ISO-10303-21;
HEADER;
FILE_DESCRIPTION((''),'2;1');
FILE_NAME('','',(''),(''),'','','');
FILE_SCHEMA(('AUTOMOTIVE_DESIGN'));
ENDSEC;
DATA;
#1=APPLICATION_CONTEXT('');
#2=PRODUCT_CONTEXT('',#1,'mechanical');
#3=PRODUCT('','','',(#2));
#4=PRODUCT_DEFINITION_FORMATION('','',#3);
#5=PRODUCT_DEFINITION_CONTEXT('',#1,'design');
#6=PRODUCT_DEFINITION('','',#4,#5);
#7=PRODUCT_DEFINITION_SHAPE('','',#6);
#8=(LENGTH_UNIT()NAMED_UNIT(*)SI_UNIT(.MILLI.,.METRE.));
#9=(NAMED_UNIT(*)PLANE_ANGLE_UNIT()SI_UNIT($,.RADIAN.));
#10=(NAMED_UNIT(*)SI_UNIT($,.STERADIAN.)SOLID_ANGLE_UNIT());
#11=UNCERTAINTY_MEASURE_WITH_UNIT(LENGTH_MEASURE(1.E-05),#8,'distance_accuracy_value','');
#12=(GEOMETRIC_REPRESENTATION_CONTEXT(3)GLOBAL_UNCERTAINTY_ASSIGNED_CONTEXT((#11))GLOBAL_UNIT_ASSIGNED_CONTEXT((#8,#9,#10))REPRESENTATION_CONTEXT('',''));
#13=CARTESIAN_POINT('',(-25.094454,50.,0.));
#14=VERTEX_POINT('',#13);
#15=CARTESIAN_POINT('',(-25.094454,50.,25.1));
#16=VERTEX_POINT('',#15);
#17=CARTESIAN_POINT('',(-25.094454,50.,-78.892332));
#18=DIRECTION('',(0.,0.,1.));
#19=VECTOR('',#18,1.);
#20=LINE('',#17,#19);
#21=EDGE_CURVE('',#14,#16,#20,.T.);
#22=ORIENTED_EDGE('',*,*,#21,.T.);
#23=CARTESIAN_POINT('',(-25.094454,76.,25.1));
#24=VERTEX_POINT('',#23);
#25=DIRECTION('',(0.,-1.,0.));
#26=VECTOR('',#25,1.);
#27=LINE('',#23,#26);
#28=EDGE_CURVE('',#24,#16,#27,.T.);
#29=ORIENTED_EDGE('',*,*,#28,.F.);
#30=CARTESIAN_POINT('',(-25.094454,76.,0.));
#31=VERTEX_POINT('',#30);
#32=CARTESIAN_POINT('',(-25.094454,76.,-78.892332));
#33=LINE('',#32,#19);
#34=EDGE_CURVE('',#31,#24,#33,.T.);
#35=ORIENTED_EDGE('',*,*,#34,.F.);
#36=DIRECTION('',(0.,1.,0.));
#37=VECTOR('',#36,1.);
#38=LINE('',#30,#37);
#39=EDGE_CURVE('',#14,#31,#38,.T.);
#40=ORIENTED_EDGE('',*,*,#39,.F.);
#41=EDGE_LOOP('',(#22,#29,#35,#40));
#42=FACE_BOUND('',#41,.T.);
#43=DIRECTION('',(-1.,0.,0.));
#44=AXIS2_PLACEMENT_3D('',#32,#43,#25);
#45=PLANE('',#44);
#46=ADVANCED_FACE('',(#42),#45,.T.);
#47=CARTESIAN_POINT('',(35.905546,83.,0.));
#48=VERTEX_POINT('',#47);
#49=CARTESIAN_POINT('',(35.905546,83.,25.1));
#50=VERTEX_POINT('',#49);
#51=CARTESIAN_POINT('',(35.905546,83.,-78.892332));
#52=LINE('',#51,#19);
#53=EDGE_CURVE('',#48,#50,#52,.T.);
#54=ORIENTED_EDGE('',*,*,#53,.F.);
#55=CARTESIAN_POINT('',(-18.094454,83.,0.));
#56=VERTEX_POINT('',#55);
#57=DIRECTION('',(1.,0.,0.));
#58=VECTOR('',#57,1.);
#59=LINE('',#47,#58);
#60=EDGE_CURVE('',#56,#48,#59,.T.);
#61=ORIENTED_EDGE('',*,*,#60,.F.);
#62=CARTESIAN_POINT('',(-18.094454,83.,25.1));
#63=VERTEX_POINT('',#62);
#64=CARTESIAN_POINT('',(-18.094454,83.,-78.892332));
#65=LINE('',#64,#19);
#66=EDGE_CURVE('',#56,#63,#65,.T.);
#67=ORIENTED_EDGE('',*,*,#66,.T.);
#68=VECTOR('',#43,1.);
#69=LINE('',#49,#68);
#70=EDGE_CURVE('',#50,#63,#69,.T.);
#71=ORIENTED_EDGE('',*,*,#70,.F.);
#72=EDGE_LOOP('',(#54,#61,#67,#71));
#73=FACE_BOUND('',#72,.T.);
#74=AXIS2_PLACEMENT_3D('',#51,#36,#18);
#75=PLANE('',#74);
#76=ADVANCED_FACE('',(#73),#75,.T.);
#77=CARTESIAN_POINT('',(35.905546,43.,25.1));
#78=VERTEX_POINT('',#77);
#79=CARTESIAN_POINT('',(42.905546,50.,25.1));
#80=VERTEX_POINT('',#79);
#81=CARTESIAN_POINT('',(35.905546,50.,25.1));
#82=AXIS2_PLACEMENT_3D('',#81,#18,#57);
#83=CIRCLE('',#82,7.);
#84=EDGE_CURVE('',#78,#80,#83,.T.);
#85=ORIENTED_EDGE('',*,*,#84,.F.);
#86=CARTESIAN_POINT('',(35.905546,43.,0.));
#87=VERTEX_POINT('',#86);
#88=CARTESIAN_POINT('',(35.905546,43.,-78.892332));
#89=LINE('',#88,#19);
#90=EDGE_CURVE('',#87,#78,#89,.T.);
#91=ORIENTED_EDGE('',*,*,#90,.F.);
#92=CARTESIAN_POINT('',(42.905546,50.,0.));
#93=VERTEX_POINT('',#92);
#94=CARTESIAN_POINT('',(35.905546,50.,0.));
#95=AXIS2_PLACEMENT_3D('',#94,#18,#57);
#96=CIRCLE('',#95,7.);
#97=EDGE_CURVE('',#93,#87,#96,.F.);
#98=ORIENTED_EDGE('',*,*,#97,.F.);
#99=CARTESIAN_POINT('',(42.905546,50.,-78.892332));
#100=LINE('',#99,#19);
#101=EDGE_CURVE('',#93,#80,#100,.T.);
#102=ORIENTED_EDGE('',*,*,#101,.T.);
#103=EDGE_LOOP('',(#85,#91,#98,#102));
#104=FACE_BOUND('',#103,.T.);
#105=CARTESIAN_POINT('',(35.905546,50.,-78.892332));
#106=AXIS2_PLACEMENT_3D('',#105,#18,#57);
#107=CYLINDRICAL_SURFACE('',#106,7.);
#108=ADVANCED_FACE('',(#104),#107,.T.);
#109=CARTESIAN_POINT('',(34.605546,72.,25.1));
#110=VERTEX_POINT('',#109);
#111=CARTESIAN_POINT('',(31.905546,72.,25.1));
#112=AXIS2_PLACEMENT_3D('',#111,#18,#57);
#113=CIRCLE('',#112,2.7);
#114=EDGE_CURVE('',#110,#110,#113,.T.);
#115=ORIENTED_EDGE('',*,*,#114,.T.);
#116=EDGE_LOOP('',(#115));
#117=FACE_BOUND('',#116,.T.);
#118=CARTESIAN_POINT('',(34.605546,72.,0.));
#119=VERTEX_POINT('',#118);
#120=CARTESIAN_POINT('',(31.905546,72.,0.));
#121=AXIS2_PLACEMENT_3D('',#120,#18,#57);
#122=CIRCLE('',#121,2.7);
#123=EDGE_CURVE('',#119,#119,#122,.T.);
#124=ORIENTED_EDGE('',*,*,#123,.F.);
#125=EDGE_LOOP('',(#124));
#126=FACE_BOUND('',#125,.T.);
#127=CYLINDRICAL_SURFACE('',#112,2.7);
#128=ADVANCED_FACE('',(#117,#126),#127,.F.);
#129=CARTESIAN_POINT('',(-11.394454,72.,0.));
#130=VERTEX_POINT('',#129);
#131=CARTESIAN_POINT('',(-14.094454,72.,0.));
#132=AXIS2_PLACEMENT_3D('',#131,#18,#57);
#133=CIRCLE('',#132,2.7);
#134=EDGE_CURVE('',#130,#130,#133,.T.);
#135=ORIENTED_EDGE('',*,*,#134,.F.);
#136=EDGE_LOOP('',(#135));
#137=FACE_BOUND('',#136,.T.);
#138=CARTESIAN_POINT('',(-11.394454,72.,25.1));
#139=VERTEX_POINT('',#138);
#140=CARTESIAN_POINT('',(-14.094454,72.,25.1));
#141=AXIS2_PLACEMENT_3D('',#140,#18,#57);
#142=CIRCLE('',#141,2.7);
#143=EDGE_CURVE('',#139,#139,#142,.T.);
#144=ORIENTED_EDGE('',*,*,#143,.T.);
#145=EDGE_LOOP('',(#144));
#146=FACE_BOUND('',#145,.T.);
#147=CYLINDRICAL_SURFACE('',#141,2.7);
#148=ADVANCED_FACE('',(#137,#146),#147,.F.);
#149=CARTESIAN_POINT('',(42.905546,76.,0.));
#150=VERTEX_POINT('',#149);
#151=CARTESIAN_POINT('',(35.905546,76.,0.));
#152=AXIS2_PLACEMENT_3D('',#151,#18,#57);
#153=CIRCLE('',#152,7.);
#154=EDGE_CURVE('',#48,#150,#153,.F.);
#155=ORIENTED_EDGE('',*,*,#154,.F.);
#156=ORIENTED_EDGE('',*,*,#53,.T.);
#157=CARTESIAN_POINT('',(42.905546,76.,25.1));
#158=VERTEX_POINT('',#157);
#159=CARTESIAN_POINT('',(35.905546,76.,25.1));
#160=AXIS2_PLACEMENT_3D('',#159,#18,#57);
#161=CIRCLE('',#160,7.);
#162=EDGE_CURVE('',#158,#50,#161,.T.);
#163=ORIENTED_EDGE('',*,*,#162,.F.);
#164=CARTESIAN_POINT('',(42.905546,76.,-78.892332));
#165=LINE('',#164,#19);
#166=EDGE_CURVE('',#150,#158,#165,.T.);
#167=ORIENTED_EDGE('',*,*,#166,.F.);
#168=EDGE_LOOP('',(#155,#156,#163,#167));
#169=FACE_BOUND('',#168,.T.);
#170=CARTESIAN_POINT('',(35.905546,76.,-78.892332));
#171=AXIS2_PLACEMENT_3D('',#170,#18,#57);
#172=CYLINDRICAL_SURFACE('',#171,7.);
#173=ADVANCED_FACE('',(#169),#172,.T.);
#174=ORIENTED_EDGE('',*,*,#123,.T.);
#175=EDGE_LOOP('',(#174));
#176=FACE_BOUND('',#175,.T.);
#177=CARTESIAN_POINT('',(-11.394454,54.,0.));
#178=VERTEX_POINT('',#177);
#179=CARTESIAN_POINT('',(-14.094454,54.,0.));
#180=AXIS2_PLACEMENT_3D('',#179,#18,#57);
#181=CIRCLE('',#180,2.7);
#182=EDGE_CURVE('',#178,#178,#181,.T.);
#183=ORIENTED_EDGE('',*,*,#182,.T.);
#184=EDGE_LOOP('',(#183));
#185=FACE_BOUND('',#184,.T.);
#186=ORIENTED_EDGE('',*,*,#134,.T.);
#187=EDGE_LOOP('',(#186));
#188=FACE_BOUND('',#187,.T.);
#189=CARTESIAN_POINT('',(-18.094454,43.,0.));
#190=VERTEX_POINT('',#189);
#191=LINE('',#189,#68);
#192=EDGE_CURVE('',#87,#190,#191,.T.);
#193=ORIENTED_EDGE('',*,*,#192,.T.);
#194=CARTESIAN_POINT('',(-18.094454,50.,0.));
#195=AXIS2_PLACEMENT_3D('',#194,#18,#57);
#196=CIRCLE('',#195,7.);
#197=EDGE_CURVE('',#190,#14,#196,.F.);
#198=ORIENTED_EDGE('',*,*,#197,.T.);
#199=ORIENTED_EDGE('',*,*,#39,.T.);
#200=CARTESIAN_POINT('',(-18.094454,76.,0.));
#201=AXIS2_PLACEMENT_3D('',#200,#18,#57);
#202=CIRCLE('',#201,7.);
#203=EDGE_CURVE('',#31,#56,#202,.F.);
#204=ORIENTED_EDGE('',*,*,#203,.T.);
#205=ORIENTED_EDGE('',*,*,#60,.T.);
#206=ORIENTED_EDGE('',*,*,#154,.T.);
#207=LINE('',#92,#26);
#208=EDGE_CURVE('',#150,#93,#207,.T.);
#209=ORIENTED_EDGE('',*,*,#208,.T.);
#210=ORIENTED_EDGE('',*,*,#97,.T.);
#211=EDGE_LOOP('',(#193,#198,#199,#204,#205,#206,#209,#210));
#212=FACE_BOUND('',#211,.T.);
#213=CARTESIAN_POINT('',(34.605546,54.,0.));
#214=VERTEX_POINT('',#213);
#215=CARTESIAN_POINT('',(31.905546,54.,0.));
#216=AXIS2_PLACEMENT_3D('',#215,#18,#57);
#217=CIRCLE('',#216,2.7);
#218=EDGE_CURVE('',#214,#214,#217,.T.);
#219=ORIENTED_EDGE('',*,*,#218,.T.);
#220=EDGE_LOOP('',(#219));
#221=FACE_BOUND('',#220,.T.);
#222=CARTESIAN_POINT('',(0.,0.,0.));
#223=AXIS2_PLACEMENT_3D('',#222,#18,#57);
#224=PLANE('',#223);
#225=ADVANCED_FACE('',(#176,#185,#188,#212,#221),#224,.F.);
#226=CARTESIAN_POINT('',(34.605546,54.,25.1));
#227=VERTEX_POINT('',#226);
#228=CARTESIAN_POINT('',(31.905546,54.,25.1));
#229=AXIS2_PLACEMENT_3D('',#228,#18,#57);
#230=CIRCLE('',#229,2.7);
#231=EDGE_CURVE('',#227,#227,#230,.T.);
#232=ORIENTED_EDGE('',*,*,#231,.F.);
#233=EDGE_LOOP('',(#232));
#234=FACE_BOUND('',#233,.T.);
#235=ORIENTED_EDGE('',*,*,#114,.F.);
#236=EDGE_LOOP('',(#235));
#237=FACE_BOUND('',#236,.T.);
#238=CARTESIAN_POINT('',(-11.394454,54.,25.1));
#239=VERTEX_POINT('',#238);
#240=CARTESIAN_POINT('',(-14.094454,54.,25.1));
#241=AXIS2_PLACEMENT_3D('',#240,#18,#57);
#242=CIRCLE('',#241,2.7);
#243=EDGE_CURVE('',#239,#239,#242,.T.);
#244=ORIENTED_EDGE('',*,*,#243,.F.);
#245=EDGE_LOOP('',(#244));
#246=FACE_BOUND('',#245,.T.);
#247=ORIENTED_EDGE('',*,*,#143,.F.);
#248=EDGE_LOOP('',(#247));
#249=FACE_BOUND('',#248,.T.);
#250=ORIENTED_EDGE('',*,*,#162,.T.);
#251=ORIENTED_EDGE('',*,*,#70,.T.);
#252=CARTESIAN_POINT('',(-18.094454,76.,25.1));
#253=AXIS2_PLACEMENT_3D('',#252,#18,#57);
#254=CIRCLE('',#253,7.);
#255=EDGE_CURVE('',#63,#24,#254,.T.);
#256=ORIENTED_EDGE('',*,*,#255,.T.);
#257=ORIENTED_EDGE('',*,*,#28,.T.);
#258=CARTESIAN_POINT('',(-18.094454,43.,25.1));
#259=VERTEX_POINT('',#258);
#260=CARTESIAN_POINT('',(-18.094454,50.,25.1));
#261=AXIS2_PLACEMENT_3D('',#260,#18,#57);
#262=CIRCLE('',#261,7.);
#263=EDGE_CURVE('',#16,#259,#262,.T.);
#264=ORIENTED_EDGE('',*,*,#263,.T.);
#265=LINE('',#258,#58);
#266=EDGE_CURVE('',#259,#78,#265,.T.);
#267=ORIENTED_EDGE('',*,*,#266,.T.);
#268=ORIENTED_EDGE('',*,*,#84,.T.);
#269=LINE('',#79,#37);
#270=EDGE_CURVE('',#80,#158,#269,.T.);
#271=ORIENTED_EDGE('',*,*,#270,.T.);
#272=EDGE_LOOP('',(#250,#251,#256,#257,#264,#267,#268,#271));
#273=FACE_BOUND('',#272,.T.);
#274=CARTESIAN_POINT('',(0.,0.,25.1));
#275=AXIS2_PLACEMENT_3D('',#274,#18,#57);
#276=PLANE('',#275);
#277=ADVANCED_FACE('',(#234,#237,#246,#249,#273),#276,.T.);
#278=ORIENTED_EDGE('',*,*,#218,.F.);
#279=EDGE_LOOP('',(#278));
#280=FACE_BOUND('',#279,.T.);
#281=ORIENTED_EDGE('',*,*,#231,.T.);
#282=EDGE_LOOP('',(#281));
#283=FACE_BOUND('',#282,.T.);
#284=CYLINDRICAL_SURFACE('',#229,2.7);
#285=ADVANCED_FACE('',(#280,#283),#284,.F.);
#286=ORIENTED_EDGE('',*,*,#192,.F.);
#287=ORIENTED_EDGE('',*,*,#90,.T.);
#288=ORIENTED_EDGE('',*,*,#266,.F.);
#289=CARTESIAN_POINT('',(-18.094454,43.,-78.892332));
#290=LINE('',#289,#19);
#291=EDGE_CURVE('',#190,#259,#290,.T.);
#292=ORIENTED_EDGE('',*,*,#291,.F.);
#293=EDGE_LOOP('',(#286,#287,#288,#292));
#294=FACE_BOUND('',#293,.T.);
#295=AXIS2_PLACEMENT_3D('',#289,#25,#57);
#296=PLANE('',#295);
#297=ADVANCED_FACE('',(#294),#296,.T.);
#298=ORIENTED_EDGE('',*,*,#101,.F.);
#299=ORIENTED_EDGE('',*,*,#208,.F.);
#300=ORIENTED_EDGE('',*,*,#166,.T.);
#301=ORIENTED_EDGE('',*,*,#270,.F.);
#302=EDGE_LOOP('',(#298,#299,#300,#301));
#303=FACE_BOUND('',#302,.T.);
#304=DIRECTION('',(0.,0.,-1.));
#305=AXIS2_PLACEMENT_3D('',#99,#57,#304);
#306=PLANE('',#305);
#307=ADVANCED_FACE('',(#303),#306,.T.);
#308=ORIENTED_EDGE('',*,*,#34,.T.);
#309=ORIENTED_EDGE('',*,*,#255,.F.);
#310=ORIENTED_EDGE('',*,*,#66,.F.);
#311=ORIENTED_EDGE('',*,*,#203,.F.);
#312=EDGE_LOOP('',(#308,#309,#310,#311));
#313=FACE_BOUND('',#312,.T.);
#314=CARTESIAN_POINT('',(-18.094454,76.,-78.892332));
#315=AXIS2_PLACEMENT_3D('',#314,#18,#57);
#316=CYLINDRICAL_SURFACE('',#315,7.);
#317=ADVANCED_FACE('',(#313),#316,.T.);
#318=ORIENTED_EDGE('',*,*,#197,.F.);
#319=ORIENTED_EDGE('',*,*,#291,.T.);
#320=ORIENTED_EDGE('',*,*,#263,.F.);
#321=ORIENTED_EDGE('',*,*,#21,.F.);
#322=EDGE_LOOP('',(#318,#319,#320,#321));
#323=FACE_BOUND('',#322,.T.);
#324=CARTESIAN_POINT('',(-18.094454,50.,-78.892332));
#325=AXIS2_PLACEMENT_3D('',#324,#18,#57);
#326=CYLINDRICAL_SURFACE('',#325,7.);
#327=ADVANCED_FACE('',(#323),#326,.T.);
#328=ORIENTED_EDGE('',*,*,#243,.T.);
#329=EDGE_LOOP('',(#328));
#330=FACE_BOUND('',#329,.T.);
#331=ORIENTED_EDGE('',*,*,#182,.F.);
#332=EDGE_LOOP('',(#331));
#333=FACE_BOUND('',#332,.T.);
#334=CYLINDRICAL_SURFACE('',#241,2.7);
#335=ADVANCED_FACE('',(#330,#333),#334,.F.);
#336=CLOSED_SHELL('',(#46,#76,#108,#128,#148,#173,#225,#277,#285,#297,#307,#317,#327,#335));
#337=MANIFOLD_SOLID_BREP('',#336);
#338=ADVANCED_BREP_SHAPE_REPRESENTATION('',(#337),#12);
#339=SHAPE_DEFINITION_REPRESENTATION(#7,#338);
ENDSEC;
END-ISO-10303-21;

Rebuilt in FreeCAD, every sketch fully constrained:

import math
import FreeCAD as App
import Part
import Sketcher
Q = App.Units.Quantity


def edges_at(feature, points):
    """Names of the edges that pass closest to the given points."""
    edges = feature.Shape.Edges
    near = lambda p: min(range(len(edges)), key=lambda i: edges[i].distToShape(Part.Vertex(*p))[0])
    return sorted({f"Edge{near(p) + 1}" for p in points})


def add_polygon(sketch, points):
    """Adds a closed chain of lines whose ends are joined by coincident constraints."""
    first, n = sketch.GeometryCount, len(points)
    for a, b in zip(points, points[1:] + points[:1]):
        sketch.addGeometry(Part.LineSegment(App.Vector(*a, 0), App.Vector(*b, 0)), False)
    for i in range(n):
        sketch.addConstraint(Sketcher.Constraint("Coincident", first + i, 2, first + (i + 1) % n, 1))

doc = App.newDocument("Part")
body = doc.addObject("PartDesign::Body", "Body")

# Sketch on XY plane
sketch1 = body.newObject("Sketcher::SketchObject", "Sketch")
sketch1.AttachmentSupport = (doc.getObject("XY_Plane"), [""])
sketch1.MapMode = "FlatFace"
add_polygon(sketch1, [(-21.094454, 79), (-21.094454, 47), (38.905546, 47), (38.905546, 79)])  # lines 0-3
sketch1.addConstraint(Sketcher.Constraint("Vertical", 0))
sketch1.addConstraint(Sketcher.Constraint("Horizontal", 1))
sketch1.addConstraint(Sketcher.Constraint("Vertical", 2))
sketch1.addConstraint(Sketcher.Constraint("Horizontal", 3))
sketch1.addConstraint(Sketcher.Constraint("DistanceX", 1, 1, 1, 2, Q("60 mm")))
sketch1.addConstraint(Sketcher.Constraint("DistanceY", 0, 2, 0, 1, Q("32 mm")))
sketch1.addConstraint(Sketcher.Constraint("DistanceY", -1, 1, 0, 2, Q("47 mm")))
sketch1.addConstraint(Sketcher.Constraint("DistanceX", 0, 2, -1, 1, Q("21.094454 mm")))
pad1 = body.newObject("PartDesign::Pad", "Pad")
pad1.Profile = sketch1
pad1.Length = 25.1

# Sketch on XY plane
sketch2 = body.newObject("Sketcher::SketchObject", "Sketch001")
sketch2.AttachmentSupport = (doc.getObject("XY_Plane"), [""])
sketch2.MapMode = "FlatFace"
sketch2.AttachmentOffset = App.Placement(App.Vector(0, 0, 25.1), App.Rotation())
sketch2.addGeometry(Part.Circle(App.Vector(31.905546, 72, 0), App.Vector(0, 0, 1), 2.7), False)
sketch2.addGeometry(Part.Circle(App.Vector(31.905546, 54, 0), App.Vector(0, 0, 1), 2.7), False)
sketch2.addGeometry(Part.Circle(App.Vector(-14.094454, 54, 0), App.Vector(0, 0, 1), 2.7), False)
sketch2.addGeometry(Part.Circle(App.Vector(-14.094454, 72, 0), App.Vector(0, 0, 1), 2.7), False)
sketch2.addConstraint(Sketcher.Constraint("Equal", 0, 1))
sketch2.addConstraint(Sketcher.Constraint("Equal", 1, 2))
sketch2.addConstraint(Sketcher.Constraint("Equal", 2, 3))
sketch2.addConstraint(Sketcher.Constraint("Horizontal", 1, 3, 2, 3))
sketch2.addConstraint(Sketcher.Constraint("Horizontal", 0, 3, 3, 3))
sketch2.addConstraint(Sketcher.Constraint("Vertical", 0, 3, 1, 3))
sketch2.addConstraint(Sketcher.Constraint("Vertical", 2, 3, 3, 3))
sketch2.addConstraint(Sketcher.Constraint("Diameter", 0, Q("5.4 mm")))
sketch2.addConstraint(Sketcher.Constraint("DistanceY", -1, 1, 0, 3, Q("72 mm")))
sketch2.addConstraint(Sketcher.Constraint("DistanceY", -1, 1, 1, 3, Q("54 mm")))
sketch2.addConstraint(Sketcher.Constraint("DistanceX", 2, 3, 1, 3, Q("46 mm")))
sketch2.addConstraint(Sketcher.Constraint("DistanceX", -1, 1, 0, 3, Q("31.905546 mm")))
doc.recompute()
hole = body.newObject("PartDesign::Hole", "Hole")
hole.Profile = sketch2
hole.ThreadType = "None"
hole.Diameter = 5.4
hole.DepthType = "ThroughAll"
doc.recompute()

fillet = body.newObject("PartDesign::Fillet", "Fillet")
fillet.Base = (hole, edges_at(hole, [
    (-21.094, 47, 12.55),
    (-21.094, 79, 12.55),
    (38.906, 79, 12.55),
    (38.906, 47, 12.55),
]))
fillet.Radius = 3

# Sketch on XY plane
sketch3 = body.newObject("Sketcher::SketchObject", "Sketch002")
sketch3.AttachmentSupport = (doc.getObject("XY_Plane"), [""])
sketch3.MapMode = "FlatFace"
sketch3.AttachmentOffset = App.Placement(App.Vector(0, 0, 25.1), App.Rotation())
sketch3.addGeometry(Part.LineSegment(App.Vector(42.905546, 50, 0), App.Vector(42.905546, 76, 0)), False)
sketch3.addGeometry(Part.ArcOfCircle(Part.Circle(App.Vector(35.905546, 76, 0), App.Vector(0, 0, 1), 7), math.radians(0), math.radians(90)), False)
sketch3.addGeometry(Part.LineSegment(App.Vector(35.905546, 83, 0), App.Vector(-18.094454, 83, 0)), False)
sketch3.addGeometry(Part.ArcOfCircle(Part.Circle(App.Vector(-18.094454, 76, 0), App.Vector(0, 0, 1), 7), math.radians(90), math.radians(180)), False)
sketch3.addGeometry(Part.LineSegment(App.Vector(-25.094454, 76, 0), App.Vector(-25.094454, 50, 0)), False)
sketch3.addGeometry(Part.ArcOfCircle(Part.Circle(App.Vector(-18.094454, 50, 0), App.Vector(0, 0, 1), 7), math.radians(-180), math.radians(-90)), False)
sketch3.addGeometry(Part.LineSegment(App.Vector(-18.094454, 43, 0), App.Vector(35.905546, 43, 0)), False)
sketch3.addGeometry(Part.ArcOfCircle(Part.Circle(App.Vector(35.905546, 50, 0), App.Vector(0, 0, 1), 7), math.radians(-90), math.radians(0)), False)
sketch3.addGeometry(Part.LineSegment(App.Vector(-18.094454, 79, 0), App.Vector(35.905546, 79, 0)), False)
sketch3.addGeometry(Part.ArcOfCircle(Part.Circle(App.Vector(35.905546, 76, 0), App.Vector(0, 0, 1), 3), math.radians(0), math.radians(90)), False)
sketch3.addGeometry(Part.LineSegment(App.Vector(38.905546, 76, 0), App.Vector(38.905546, 50, 0)), False)
sketch3.addGeometry(Part.ArcOfCircle(Part.Circle(App.Vector(35.905546, 50, 0), App.Vector(0, 0, 1), 3), math.radians(-90), math.radians(0)), False)
sketch3.addGeometry(Part.LineSegment(App.Vector(35.905546, 47, 0), App.Vector(-18.094454, 47, 0)), False)
sketch3.addGeometry(Part.ArcOfCircle(Part.Circle(App.Vector(-18.094454, 50, 0), App.Vector(0, 0, 1), 3), math.radians(180), math.radians(270)), False)
sketch3.addGeometry(Part.LineSegment(App.Vector(-21.094454, 50, 0), App.Vector(-21.094454, 76, 0)), False)
sketch3.addGeometry(Part.ArcOfCircle(Part.Circle(App.Vector(-18.094454, 76, 0), App.Vector(0, 0, 1), 3), math.radians(90), math.radians(180)), False)
sketch3.addConstraint(Sketcher.Constraint("Tangent", 0, 2, 1, 1))
sketch3.addConstraint(Sketcher.Constraint("Tangent", 1, 2, 2, 1))
sketch3.addConstraint(Sketcher.Constraint("Tangent", 2, 2, 3, 1))
sketch3.addConstraint(Sketcher.Constraint("Tangent", 3, 2, 4, 1))
sketch3.addConstraint(Sketcher.Constraint("Tangent", 4, 2, 5, 1))
sketch3.addConstraint(Sketcher.Constraint("Tangent", 5, 2, 6, 1))
sketch3.addConstraint(Sketcher.Constraint("Tangent", 6, 2, 7, 1))
sketch3.addConstraint(Sketcher.Constraint("Tangent", 7, 2, 0, 1))
sketch3.addConstraint(Sketcher.Constraint("Tangent", 8, 2, 9, 2))
sketch3.addConstraint(Sketcher.Constraint("Tangent", 9, 1, 10, 1))
sketch3.addConstraint(Sketcher.Constraint("Tangent", 10, 2, 11, 2))
sketch3.addConstraint(Sketcher.Constraint("Tangent", 11, 1, 12, 1))
sketch3.addConstraint(Sketcher.Constraint("Tangent", 12, 2, 13, 2))
sketch3.addConstraint(Sketcher.Constraint("Tangent", 13, 1, 14, 1))
sketch3.addConstraint(Sketcher.Constraint("Tangent", 14, 2, 15, 2))
sketch3.addConstraint(Sketcher.Constraint("Tangent", 15, 1, 8, 1))
sketch3.addConstraint(Sketcher.Constraint("Vertical", 0))
sketch3.addConstraint(Sketcher.Constraint("Horizontal", 2))
sketch3.addConstraint(Sketcher.Constraint("Vertical", 4))
sketch3.addConstraint(Sketcher.Constraint("Horizontal", 6))
sketch3.addConstraint(Sketcher.Constraint("Horizontal", 8))
sketch3.addConstraint(Sketcher.Constraint("Vertical", 10))
sketch3.addConstraint(Sketcher.Constraint("Horizontal", 12))
sketch3.addConstraint(Sketcher.Constraint("Vertical", 14))
sketch3.addConstraint(Sketcher.Constraint("Coincident", 9, 3, 1, 3))
sketch3.addConstraint(Sketcher.Constraint("Coincident", 11, 3, 7, 3))
sketch3.addConstraint(Sketcher.Constraint("Coincident", 13, 3, 5, 3))
sketch3.addConstraint(Sketcher.Constraint("Equal", 1, 3))
sketch3.addConstraint(Sketcher.Constraint("Equal", 3, 5))
sketch3.addConstraint(Sketcher.Constraint("Equal", 5, 7))
sketch3.addConstraint(Sketcher.Constraint("Equal", 13, 15))
sketch3.addConstraint(Sketcher.Constraint("Radius", 1, Q("7 mm")))
sketch3.addConstraint(Sketcher.Constraint("Radius", 9, Q("3 mm")))
sketch3.addConstraint(Sketcher.Constraint("DistanceX", 2, 2, 2, 1, Q("54 mm")))
sketch3.addConstraint(Sketcher.Constraint("DistanceY", 0, 1, 0, 2, Q("26 mm")))
sketch3.addConstraint(Sketcher.Constraint("DistanceY", -1, 1, 1, 3, Q("76 mm")))
sketch3.addConstraint(Sketcher.Constraint("DistanceX", -1, 1, 1, 3, Q("35.905546 mm")))
pad2 = body.newObject("PartDesign::Pad", "Pad001")
pad2.Profile = sketch3
pad2.Length = 25.1
pad2.Reversed = True

doc.recompute()
